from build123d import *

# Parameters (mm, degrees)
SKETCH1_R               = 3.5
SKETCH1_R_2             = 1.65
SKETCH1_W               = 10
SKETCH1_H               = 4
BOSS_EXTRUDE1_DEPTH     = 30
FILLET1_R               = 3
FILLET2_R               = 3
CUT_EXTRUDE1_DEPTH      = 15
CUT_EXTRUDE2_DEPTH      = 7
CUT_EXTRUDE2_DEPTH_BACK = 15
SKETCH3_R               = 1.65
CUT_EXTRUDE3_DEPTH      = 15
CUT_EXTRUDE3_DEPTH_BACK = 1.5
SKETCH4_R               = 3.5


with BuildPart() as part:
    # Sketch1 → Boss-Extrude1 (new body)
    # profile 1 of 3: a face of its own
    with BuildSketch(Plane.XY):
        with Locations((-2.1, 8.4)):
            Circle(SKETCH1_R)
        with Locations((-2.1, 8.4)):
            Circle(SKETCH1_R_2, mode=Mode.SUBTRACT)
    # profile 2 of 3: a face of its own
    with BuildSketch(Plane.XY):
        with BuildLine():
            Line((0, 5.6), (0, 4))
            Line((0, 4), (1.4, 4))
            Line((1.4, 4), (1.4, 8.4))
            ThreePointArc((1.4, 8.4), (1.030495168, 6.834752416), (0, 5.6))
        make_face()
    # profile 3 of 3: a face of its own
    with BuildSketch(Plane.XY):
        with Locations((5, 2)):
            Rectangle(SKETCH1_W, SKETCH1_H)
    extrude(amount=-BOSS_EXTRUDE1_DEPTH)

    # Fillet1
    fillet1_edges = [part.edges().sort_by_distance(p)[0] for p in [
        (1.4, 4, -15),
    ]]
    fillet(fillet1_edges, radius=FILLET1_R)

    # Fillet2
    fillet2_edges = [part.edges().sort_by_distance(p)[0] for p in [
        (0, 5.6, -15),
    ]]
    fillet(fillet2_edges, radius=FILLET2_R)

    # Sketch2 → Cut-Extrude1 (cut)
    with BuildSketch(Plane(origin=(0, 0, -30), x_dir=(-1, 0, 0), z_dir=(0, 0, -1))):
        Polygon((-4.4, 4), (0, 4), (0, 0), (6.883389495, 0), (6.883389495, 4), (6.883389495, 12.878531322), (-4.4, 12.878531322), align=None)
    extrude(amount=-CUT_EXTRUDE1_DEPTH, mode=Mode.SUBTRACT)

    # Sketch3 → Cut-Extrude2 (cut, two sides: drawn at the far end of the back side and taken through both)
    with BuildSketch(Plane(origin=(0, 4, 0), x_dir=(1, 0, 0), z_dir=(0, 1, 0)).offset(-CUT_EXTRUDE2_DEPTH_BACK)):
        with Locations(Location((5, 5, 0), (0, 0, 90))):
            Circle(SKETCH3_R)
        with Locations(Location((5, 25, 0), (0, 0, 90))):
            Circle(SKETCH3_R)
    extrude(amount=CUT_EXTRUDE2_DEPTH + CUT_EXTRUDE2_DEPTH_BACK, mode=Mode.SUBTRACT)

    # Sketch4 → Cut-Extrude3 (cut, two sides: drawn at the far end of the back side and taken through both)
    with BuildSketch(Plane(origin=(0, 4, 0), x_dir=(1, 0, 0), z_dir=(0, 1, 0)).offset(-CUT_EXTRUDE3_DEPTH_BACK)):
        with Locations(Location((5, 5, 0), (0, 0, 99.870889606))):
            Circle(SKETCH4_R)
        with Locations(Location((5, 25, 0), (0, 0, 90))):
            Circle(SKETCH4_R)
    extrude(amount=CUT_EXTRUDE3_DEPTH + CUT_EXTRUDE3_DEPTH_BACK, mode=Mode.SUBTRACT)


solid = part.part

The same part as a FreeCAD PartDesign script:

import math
import FreeCAD as App
import Part
import Sketcher

V = App.Vector
Q = App.Units.Quantity


def edges_at(feature, points):
    """Names of the edges that pass closest to the given points."""
    edges = feature.Shape.Edges
    near = lambda p: min(range(len(edges)), key=lambda i: edges[i].distToShape(Part.Vertex(*p))[0])
    return sorted({f"Edge{near(p) + 1}" for p in points})

doc = App.newDocument("Part")
body = doc.addObject("PartDesign::Body", "Body")

sketch1 = body.newObject("Sketcher::SketchObject", "Sketch")
sketch1.AttachmentSupport = (doc.getObject("XY_Plane"), [""])
sketch1.MapMode = "FlatFace"
sketch1.addGeometry([
    Part.ArcOfCircle(Part.Circle(V(-2.1, 8.4, 0), V(0, 0, 1), 3.5), math.radians(0), math.radians(306.869898)),
    Part.LineSegment(V(0, 5.6, 0), V(0, 0, 0)),
    Part.LineSegment(V(0, 0, 0), V(10, 0, 0)),
    Part.LineSegment(V(10, 0, 0), V(10, 4, 0)),
    Part.LineSegment(V(10, 4, 0), V(1.4, 4, 0)),
    Part.LineSegment(V(1.4, 4, 0), V(1.4, 8.4, 0)),
    Part.Circle(V(-2.1, 8.4, 0), V(0, 0, 1), 1.65),
], False)
sketch1.addConstraint([
    Sketcher.Constraint("Coincident", 0, 2, 1, 1),
    Sketcher.Constraint("Coincident", 1, 2, 2, 1),
    Sketcher.Constraint("Coincident", 2, 2, 3, 1),
    Sketcher.Constraint("Coincident", 3, 2, 4, 1),
    Sketcher.Constraint("Coincident", 4, 2, 5, 1),
    Sketcher.Constraint("Tangent", 5, 2, 0, 1),
    Sketcher.Constraint("Vertical", 1),
    Sketcher.Constraint("Horizontal", 2),
    Sketcher.Constraint("Vertical", 3),
    Sketcher.Constraint("Horizontal", 4),
    Sketcher.Constraint("Vertical", 5),
    Sketcher.Constraint("Coincident", 1, 2, -1, 1),
    Sketcher.Constraint("Coincident", 6, 3, 0, 3),
    Sketcher.Constraint("Diameter", 6, Q("3.3 mm")),
    Sketcher.Constraint("Radius", 0, Q("3.5 mm")),
    Sketcher.Constraint("DistanceX", 2, 1, 2, 2, Q("10 mm")),
    Sketcher.Constraint("DistanceY", 3, 1, 3, 2, Q("4 mm")),
    Sketcher.Constraint("DistanceX", 4, 2, 4, 1, Q("8.6 mm")),
    Sketcher.Constraint("DistanceY", 1, 2, 1, 1, Q("5.6 mm")),
])
pad1 = body.newObject("PartDesign::Pad", "Pad")
pad1.Profile = sketch1
pad1.Length = 30
pad1.Reversed = True
doc.recompute()

fillet = body.newObject("PartDesign::Fillet", "Fillet")
fillet.Base = (pad1, edges_at(pad1, [(1.4, 4, -15)]))
fillet.Radius = 3
doc.recompute()

fillet2 = body.newObject("PartDesign::Fillet", "Fillet001")
fillet2.Base = (fillet, edges_at(fillet, [(0, 5.6, -15)]))
fillet2.Radius = 3

sketch2 = body.newObject("Sketcher::SketchObject", "Sketch001")
sketch2.AttachmentSupport = (doc.getObject("XY_Plane"), [""])
sketch2.MapMode = "FlatFace"
sketch2.AttachmentOffset = App.Placement(V(0, 0, -30), App.Rotation())
sketch2.addGeometry([
    Part.LineSegment(V(4.4, 4, 0), V(0, 4, 0)),
    Part.LineSegment(V(0, 4, 0), V(0, 0, 0)),
    Part.LineSegment(V(0, 0, 0), V(-6.883389, 0, 0)),
    Part.LineSegment(V(-6.883389, 0, 0), V(-6.883389, 12.878531, 0)),
    Part.LineSegment(V(-6.883389, 12.878531, 0), V(4.4, 12.878531, 0)),
    Part.LineSegment(V(4.4, 12.878531, 0), V(4.4, 4, 0)),
], False)
sketch2.addConstraint([
    Sketcher.Constraint("Coincident", 0, 2, 1, 1),
    Sketcher.Constraint("Coincident", 1, 2, 2, 1),
    Sketcher.Constraint("Coincident", 2, 2, 3, 1),
    Sketcher.Constraint("Coincident", 3, 2, 4, 1),
    Sketcher.Constraint("Coincident", 4, 2, 5, 1),
    Sketcher.Constraint("Coincident", 5, 2, 0, 1),
    Sketcher.Constraint("Horizontal", 0),
    Sketcher.Constraint("Vertical", 1),
    Sketcher.Constraint("Horizontal", 2),
    Sketcher.Constraint("Vertical", 3),
    Sketcher.Constraint("Horizontal", 4),
    Sketcher.Constraint("Vertical", 5),
    Sketcher.Constraint("Coincident", 1, 2, -1, 1),
    Sketcher.Constraint("DistanceY", 1, 2, 1, 1, Q("4 mm")),
    Sketcher.Constraint("DistanceX", 0, 2, 0, 1, Q("4.4 mm")),
    Sketcher.Constraint("DistanceX", 2, 2, 2, 1, Q("6.883389 mm")),
    Sketcher.Constraint("DistanceY", 3, 1, 3, 2, Q("12.878531 mm")),
])
pocket1 = body.newObject("PartDesign::Pocket", "Pocket")
pocket1.Profile = sketch2
pocket1.Length = 15
pocket1.Reversed = True

sketch3 = body.newObject("Sketcher::SketchObject", "Sketch002")
sketch3.AttachmentSupport = (doc.getObject("XZ_Plane"), [""])
sketch3.MapMode = "FlatFace"
sketch3.AttachmentOffset = App.Placement(V(0, 0, -4), App.Rotation())
sketch3.addGeometry([
    Part.Circle(V(5, -5, 0), V(0, 0, 1), 1.65),
    Part.Circle(V(5, -25, 0), V(0, 0, 1), 1.65),
], False)
sketch3.addConstraint([
    Sketcher.Constraint("Equal", 0, 1),
    Sketcher.Constraint("Vertical", 0, 3, 1, 3),
    Sketcher.Constraint("Diameter", 0, Q("3.3 mm")),
    Sketcher.Constraint("DistanceX", -1, 1, 0, 3, Q("5 mm")),
    Sketcher.Constraint("DistanceY", 0, 3, -1, 1, Q("5 mm")),
    Sketcher.Constraint("DistanceY", 1, 3, -1, 1, Q("25 mm")),
])
pocket2 = body.newObject("PartDesign::Pocket", "Pocket001")
pocket2.Profile = sketch3
pocket2.Type = "ThroughAll"
pocket2.Midplane = True

sketch4 = body.newObject("Sketcher::SketchObject", "Sketch003")
sketch4.AttachmentSupport = (doc.getObject("XZ_Plane"), [""])
sketch4.MapMode = "FlatFace"
sketch4.AttachmentOffset = App.Placement(V(0, 0, -4), App.Rotation())
sketch4.addGeometry([
    Part.Circle(V(5, -5, 0), V(0, 0, 1), 3.5),
    Part.Circle(V(5, -25, 0), V(0, 0, 1), 3.5),
], False)
sketch4.addConstraint([
    Sketcher.Constraint("Equal", 0, 1),
    Sketcher.Constraint("Vertical", 0, 3, 1, 3),
    Sketcher.Constraint("Diameter", 0, Q("7 mm")),
    Sketcher.Constraint("DistanceX", -1, 1, 0, 3, Q("5 mm")),
    Sketcher.Constraint("DistanceY", 0, 3, -1, 1, Q("5 mm")),
    Sketcher.Constraint("DistanceY", 1, 3, -1, 1, Q("25 mm")),
])
pocket3 = body.newObject("PartDesign::Pocket", "Pocket002")
pocket3.Profile = sketch4
pocket3.Type = "TwoLengths"
pocket3.Length = 15
pocket3.Length2 = 1.5

doc.recompute()
